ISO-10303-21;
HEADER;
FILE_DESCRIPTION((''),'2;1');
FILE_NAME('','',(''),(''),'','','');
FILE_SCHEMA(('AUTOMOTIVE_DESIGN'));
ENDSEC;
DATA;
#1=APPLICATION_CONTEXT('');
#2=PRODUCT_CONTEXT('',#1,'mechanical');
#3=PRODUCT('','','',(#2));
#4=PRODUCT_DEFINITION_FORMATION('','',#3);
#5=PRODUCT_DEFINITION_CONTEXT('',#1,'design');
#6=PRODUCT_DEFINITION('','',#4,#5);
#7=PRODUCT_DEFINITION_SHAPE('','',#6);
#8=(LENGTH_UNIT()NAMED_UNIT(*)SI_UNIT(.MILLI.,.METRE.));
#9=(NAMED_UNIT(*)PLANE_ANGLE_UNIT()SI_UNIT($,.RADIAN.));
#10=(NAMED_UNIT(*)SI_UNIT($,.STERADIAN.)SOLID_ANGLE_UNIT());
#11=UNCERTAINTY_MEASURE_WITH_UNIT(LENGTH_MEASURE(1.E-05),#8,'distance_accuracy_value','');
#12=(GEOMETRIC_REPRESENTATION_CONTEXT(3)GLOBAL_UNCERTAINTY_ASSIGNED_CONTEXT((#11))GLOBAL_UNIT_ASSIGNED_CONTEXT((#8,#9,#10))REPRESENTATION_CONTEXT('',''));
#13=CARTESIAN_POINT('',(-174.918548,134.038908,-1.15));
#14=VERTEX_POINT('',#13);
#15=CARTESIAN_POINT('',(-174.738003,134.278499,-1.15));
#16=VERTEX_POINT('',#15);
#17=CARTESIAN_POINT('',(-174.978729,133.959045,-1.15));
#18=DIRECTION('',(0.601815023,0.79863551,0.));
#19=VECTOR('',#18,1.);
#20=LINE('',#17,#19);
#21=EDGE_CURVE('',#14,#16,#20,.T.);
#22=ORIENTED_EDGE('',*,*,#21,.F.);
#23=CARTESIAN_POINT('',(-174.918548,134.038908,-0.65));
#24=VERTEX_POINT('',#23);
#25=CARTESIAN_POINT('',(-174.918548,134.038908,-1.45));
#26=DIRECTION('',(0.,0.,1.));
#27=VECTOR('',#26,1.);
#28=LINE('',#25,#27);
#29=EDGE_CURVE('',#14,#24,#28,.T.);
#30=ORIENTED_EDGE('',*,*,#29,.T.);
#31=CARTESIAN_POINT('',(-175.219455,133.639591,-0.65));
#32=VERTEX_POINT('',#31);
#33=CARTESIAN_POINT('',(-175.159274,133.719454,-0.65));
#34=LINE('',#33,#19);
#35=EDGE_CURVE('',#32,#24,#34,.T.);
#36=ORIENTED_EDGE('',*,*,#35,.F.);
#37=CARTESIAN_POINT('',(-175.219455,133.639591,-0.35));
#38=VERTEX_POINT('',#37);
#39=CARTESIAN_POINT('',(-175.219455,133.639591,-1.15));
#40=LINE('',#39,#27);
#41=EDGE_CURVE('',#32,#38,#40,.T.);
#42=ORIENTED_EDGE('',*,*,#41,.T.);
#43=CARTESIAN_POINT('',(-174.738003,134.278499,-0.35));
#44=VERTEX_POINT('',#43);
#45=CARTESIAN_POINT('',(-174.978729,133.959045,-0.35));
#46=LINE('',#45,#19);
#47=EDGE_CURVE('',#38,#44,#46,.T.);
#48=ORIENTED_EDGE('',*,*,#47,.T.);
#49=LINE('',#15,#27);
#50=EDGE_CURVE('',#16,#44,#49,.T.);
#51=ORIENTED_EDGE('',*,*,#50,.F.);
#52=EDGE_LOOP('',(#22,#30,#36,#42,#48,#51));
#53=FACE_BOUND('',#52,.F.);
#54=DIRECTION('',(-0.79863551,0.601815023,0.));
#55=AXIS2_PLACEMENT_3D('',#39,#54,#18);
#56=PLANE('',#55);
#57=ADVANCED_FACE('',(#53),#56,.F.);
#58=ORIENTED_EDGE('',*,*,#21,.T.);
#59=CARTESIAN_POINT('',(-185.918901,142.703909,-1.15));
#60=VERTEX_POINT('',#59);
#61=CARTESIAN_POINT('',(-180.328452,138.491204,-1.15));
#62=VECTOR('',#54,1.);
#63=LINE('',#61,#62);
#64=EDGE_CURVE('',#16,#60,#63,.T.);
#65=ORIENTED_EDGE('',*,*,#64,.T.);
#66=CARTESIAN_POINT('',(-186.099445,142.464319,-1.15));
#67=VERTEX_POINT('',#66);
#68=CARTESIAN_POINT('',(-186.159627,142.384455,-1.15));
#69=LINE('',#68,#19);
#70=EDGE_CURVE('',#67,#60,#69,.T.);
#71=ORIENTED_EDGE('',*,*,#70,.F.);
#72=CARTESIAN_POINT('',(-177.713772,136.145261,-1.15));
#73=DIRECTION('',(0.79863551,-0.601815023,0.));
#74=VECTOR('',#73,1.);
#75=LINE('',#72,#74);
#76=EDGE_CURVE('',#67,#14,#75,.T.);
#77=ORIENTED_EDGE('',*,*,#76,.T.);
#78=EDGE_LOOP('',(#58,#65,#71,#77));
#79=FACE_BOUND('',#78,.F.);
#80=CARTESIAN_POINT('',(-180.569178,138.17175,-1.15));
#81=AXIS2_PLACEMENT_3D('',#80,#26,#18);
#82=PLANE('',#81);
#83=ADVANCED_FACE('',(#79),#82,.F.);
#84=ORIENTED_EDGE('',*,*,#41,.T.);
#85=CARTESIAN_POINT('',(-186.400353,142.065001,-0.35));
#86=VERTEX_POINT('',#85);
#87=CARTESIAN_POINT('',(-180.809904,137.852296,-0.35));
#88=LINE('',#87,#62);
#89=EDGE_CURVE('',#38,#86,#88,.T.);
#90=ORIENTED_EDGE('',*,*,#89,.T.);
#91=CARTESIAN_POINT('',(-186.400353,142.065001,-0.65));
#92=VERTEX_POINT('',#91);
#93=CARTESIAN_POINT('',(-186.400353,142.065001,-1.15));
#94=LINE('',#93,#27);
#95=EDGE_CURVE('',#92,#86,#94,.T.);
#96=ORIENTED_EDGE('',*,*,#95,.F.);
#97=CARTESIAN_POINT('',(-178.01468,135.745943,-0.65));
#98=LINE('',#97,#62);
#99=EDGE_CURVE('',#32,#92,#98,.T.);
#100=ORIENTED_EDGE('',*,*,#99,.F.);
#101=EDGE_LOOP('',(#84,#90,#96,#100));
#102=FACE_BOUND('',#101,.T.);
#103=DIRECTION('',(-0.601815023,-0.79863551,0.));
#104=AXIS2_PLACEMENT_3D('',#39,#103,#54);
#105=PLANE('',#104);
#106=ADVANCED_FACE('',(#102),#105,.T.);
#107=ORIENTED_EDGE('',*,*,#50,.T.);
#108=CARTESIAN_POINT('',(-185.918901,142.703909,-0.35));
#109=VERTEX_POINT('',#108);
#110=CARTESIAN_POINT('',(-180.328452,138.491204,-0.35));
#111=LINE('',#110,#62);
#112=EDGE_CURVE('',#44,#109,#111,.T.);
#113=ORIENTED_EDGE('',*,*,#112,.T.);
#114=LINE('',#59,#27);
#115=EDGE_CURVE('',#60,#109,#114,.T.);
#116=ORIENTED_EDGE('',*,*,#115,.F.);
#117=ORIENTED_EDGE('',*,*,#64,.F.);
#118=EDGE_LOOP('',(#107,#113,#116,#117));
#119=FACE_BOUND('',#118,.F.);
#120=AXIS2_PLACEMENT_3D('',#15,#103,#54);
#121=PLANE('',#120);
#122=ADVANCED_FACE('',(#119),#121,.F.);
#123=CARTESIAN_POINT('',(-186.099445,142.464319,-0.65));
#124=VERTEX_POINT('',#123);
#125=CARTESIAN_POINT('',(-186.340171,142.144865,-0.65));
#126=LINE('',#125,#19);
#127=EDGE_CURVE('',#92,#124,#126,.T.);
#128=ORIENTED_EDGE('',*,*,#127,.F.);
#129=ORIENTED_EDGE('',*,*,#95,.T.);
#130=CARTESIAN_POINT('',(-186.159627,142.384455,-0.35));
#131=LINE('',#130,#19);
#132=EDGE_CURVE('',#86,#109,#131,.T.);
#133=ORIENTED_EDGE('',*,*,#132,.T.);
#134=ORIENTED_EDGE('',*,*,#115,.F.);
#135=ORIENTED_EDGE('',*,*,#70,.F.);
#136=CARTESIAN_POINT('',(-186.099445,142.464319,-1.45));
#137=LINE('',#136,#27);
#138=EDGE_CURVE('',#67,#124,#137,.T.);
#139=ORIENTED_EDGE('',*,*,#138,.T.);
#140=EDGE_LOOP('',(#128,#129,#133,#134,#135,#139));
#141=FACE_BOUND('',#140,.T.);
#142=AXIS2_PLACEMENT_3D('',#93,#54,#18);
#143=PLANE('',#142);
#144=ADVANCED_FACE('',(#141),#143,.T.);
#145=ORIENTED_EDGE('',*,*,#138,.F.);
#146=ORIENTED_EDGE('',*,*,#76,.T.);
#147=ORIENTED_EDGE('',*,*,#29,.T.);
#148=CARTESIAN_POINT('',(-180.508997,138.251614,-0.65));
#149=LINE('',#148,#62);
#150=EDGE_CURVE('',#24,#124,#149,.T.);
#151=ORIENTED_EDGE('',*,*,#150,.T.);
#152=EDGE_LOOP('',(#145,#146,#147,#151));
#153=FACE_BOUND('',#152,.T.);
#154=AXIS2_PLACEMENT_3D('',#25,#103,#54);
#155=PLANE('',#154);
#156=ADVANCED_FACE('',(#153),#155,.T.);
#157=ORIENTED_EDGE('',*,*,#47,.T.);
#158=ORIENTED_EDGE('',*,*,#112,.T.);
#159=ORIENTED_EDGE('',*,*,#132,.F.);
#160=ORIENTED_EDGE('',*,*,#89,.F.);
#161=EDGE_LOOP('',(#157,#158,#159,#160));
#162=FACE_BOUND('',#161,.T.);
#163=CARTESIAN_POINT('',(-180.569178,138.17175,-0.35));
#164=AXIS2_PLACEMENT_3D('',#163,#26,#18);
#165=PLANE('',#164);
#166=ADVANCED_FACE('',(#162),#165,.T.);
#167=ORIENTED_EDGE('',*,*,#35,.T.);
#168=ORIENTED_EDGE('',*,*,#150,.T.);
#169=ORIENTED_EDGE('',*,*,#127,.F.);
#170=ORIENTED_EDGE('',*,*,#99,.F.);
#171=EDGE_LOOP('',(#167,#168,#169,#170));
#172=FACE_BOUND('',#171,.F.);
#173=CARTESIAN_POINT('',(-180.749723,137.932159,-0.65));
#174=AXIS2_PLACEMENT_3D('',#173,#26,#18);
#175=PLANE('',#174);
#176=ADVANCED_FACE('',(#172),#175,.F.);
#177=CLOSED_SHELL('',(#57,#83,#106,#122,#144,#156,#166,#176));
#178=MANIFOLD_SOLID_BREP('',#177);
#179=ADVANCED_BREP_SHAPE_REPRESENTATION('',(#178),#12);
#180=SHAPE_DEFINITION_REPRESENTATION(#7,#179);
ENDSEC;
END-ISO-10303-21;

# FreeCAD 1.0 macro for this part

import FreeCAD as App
import Part
import Sketcher

V = App.Vector

doc = App.newDocument("Part")
params = doc.addObject("Spreadsheet::Sheet", "Params")
for row, (alias, value) in enumerate([
    ("sketch1_height", "14 mm"),
    ("sketch1_width", "0.8 mm"),
    ("pad1_length", "0.8 mm"),
    ("sketch2_height", "14 mm"),
    ("sketch2_width", "0.8 mm"),
    ("pad2_length", "0.8 mm"),
], start=1):
    params.set(f"A{row}", alias)
    params.set(f"B{row}", "=" + value)
    params.setAlias(f"B{row}", alias)

body = doc.addObject("PartDesign::Body", "Body")

# Sketch on XY plane
sketch1 = body.newObject("Sketcher::SketchObject", "Sketch")
sketch1.AttachmentSupport = (doc.getObject("XY_Plane"), [""])
sketch1.MapMode = "FlatFace"
sketch1.addGeometry([
    Part.LineSegment(V(0, 14, 0), V(0, 0, 0)),
    Part.LineSegment(V(0, 0, 0), V(0.8, 0, 0)),
    Part.LineSegment(V(0.8, 0, 0), V(0.8, 14, 0)),
    Part.LineSegment(V(0.8, 14, 0), V(0, 14, 0)),
], False)
sketch1.addConstraint([
    Sketcher.Constraint("Coincident", 0, 2, 1, 1),
    Sketcher.Constraint("Coincident", 1, 2, 2, 1),
    Sketcher.Constraint("Coincident", 2, 2, 3, 1),
    Sketcher.Constraint("Coincident", 3, 2, 0, 1),
    Sketcher.Constraint("Vertical", 0),
    Sketcher.Constraint("Horizontal", 1),
    Sketcher.Constraint("Vertical", 2),
    Sketcher.Constraint("Horizontal", 3),
    Sketcher.Constraint("Coincident", 0, 2, -1, 1),
    Sketcher.Constraint("DistanceY", 0, 2, 0, 1, 14.0),
    Sketcher.Constraint("DistanceX", 1, 1, 1, 2, 0.8),
])
sketch1.setExpression("Constraints[9]", "Params.sketch1_height")
sketch1.setExpression("Constraints[10]", "Params.sketch1_width")
pad1 = body.newObject("PartDesign::Pad", "Pad")
pad1.Profile = sketch1
pad1.setExpression("Length", "Params.pad1_length")
body2 = doc.addObject("PartDesign::Body", "Body001")

# Sketch on XY plane
sketch2 = body2.newObject("Sketcher::SketchObject", "Sketch001")
sketch2.AttachmentSupport = (doc.getObject("XY_Plane001"), [""])
sketch2.MapMode = "FlatFace"
sketch2.AttachmentOffset = App.Placement(V(0, 0, 0.3), App.Rotation())
sketch2.addGeometry([
    Part.LineSegment(V(0.3, 14, 0), V(0.3, 0, 0)),
    Part.LineSegment(V(0.3, 0, 0), V(1.1, 0, 0)),
    Part.LineSegment(V(1.1, 0, 0), V(1.1, 14, 0)),
    Part.LineSegment(V(1.1, 14, 0), V(0.3, 14, 0)),
], False)
sketch2.addConstraint([
    Sketcher.Constraint("Coincident", 0, 2, 1, 1),
    Sketcher.Constraint("Coincident", 1, 2, 2, 1),
    Sketcher.Constraint("Coincident", 2, 2, 3, 1),
    Sketcher.Constraint("Coincident", 3, 2, 0, 1),
    Sketcher.Constraint("Vertical", 0),
    Sketcher.Constraint("Horizontal", 1),
    Sketcher.Constraint("Vertical", 2),
    Sketcher.Constraint("Horizontal", 3),
    Sketcher.Constraint("PointOnObject", 0, 2, -1),
    Sketcher.Constraint("DistanceY", 0, 2, 0, 1, 14.0),
    Sketcher.Constraint("DistanceX", 1, 1, 1, 2, 0.8),
    Sketcher.Constraint("DistanceX", -1, 1, 0, 2, 0.3),
])
sketch2.setExpression("Constraints[9]", "Params.sketch2_height")
sketch2.setExpression("Constraints[10]", "Params.sketch2_width")
pad2 = body2.newObject("PartDesign::Pad", "Pad001")
pad2.Profile = sketch2
pad2.setExpression("Length", "Params.pad2_length")
doc.recompute()

boolean = body2.newObject("PartDesign::Boolean", "Boolean")
boolean.Type = "Cut"
boolean.addObjects([body])
body3 = doc.addObject("PartDesign::Body", "Body002")
doc.recompute()

body2.Placement = App.Placement(V(-175.4, 133.4, -1.45), App.Rotation(V(0, 0, 1), 53))
boolean2 = body3.newObject("PartDesign::Boolean", "Boolean001")
boolean2.Type = "Fuse"
boolean2.addObjects([body2])

doc.recompute()
